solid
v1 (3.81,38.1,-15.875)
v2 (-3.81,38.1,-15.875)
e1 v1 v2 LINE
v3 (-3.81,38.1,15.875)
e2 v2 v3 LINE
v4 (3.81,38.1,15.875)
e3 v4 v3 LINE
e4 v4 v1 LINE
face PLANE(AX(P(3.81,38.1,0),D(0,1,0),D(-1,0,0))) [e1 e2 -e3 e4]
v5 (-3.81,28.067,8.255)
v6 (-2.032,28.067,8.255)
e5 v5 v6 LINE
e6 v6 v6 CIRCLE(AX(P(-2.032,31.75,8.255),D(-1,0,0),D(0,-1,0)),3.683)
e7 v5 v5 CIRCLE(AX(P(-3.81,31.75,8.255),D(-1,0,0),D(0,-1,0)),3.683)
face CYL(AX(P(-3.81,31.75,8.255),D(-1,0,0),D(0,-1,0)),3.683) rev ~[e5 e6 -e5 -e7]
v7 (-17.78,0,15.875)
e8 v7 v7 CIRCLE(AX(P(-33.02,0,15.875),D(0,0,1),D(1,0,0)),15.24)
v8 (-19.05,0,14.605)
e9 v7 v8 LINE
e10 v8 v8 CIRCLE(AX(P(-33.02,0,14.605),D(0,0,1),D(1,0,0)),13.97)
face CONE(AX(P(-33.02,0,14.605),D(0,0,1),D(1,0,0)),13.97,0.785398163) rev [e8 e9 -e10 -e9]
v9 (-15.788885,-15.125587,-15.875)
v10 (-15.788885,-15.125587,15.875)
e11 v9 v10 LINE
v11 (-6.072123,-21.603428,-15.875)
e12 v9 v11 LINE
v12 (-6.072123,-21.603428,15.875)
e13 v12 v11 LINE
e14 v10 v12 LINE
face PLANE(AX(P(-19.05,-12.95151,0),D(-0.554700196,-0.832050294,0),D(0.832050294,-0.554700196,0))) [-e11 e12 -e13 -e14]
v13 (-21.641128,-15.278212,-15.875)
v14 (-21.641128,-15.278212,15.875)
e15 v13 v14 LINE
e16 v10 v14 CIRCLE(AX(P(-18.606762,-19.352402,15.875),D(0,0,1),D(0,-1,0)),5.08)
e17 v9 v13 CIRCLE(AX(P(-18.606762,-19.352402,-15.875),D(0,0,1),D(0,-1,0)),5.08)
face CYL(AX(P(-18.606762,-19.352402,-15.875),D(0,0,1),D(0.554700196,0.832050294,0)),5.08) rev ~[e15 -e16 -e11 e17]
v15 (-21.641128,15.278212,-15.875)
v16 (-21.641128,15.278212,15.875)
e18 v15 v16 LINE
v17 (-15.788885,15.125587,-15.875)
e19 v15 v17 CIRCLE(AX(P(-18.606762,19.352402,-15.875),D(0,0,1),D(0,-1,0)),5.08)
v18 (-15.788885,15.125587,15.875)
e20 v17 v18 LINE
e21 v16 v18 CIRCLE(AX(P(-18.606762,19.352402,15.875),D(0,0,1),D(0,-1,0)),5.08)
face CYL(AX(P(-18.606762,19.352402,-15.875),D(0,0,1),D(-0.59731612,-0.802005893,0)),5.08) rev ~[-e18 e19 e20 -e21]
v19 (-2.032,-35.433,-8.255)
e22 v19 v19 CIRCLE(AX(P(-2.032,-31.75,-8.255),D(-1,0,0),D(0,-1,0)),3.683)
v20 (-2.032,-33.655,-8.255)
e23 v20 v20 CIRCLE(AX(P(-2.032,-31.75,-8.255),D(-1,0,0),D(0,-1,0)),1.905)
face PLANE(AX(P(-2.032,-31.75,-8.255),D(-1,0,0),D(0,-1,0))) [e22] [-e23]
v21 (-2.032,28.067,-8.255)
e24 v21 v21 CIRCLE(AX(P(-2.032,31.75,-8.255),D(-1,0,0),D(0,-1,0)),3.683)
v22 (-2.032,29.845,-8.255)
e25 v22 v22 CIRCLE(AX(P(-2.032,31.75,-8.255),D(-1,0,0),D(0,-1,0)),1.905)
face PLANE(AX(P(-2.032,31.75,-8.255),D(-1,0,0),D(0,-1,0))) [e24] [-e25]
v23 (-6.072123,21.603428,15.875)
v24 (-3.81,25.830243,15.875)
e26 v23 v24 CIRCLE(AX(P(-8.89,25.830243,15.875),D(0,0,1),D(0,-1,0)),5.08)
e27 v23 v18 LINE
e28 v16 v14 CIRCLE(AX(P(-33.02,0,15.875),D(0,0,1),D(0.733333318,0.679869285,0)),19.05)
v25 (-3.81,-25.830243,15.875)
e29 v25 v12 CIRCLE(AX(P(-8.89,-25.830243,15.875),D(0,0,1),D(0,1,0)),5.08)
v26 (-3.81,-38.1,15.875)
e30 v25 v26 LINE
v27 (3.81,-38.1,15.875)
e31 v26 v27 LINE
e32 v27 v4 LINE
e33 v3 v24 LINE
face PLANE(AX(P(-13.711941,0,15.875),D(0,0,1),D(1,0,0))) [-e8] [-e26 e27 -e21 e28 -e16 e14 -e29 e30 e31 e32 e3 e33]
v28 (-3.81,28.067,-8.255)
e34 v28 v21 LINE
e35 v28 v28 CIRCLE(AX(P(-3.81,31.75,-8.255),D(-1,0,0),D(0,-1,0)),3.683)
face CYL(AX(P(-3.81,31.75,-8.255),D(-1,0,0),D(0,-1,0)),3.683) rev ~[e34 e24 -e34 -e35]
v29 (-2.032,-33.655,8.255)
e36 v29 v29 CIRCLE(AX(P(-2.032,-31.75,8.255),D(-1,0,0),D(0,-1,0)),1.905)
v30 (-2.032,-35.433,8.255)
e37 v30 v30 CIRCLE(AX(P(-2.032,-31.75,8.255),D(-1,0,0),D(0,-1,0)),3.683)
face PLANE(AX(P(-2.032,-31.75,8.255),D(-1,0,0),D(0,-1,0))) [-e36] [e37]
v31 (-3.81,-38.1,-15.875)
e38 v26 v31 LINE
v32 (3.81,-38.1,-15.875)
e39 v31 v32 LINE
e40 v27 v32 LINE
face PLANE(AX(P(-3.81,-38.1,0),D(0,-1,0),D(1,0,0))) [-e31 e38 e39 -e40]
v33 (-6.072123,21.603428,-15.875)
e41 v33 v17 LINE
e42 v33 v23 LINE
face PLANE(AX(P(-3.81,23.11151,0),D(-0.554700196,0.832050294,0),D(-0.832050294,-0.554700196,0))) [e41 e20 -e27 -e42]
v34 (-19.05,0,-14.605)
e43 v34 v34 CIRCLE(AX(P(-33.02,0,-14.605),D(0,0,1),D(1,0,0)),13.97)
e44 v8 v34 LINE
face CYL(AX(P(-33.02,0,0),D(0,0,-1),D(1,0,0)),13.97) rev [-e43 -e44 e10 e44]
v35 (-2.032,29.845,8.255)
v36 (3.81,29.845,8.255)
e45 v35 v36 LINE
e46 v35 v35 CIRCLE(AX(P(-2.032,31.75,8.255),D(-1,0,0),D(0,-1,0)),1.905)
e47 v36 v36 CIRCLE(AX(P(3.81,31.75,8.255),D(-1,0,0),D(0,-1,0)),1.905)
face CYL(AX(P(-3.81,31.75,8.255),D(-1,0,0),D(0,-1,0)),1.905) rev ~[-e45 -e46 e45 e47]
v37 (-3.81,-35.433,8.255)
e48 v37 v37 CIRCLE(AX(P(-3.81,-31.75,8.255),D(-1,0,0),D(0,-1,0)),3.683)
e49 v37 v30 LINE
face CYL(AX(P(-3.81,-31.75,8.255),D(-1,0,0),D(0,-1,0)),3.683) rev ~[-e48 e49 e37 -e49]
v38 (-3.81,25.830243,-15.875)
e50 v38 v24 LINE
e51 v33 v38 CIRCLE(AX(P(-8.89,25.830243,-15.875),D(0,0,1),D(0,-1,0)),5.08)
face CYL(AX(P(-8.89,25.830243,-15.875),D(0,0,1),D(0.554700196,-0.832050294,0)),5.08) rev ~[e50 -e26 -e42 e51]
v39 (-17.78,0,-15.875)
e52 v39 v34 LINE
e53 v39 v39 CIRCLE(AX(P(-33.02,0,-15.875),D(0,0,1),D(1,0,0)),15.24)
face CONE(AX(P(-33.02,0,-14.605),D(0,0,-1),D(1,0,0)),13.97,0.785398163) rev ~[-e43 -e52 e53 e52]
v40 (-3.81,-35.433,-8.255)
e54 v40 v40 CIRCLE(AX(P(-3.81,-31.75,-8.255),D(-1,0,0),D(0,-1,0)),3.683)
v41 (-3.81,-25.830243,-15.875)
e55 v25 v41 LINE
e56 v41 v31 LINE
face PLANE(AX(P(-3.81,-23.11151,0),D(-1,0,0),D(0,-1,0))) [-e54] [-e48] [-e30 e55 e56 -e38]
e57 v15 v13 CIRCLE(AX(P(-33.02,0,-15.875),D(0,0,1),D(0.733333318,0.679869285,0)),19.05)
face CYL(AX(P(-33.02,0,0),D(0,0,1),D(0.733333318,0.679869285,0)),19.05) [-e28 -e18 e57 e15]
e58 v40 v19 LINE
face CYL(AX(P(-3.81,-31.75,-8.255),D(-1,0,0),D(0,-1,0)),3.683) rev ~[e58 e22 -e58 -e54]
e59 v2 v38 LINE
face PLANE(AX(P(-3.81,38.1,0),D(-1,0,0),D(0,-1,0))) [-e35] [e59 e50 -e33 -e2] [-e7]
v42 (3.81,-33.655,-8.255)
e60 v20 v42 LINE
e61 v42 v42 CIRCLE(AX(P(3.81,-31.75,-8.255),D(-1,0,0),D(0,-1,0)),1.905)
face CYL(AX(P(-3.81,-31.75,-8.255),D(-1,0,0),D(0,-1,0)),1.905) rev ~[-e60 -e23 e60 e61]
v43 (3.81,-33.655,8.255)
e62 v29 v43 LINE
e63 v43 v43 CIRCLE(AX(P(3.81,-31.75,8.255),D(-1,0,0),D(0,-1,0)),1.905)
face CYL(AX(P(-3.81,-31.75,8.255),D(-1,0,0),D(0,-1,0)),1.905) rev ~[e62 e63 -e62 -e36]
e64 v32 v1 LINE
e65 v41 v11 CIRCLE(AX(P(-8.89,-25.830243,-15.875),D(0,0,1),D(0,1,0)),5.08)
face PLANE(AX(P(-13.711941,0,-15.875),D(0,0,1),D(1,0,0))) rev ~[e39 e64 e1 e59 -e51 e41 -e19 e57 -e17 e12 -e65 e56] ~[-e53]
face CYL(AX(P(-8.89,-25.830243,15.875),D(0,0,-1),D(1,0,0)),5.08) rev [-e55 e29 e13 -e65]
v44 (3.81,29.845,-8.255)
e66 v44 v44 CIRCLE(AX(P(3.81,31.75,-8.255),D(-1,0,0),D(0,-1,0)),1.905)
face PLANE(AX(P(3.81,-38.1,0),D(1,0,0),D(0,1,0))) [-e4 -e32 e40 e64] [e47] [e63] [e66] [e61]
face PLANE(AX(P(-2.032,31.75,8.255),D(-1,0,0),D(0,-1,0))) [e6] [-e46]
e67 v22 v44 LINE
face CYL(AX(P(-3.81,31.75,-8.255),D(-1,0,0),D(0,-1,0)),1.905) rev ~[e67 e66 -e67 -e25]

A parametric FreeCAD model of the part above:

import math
import FreeCAD as App
import Part
import Sketcher
Q = App.Units.Quantity


def edges_at(feature, points):
    """Names of the edges that pass closest to the given points."""
    edges = feature.Shape.Edges
    near = lambda p: min(range(len(edges)), key=lambda i: edges[i].distToShape(Part.Vertex(*p))[0])
    return sorted({f"Edge{near(p) + 1}" for p in points})

doc = App.newDocument("Part")
body = doc.addObject("PartDesign::Body", "Body")

# Sketch on XY plane
sketch1 = doc.addObject("Sketcher::SketchObject", "Sketch")
body.addObject(sketch1)
sketch1.AttachmentSupport = (doc.XY_Plane, [""])
sketch1.MapMode = "FlatFace"
sketch1.addGeometry([
    Part.LineSegment(App.Vector(4, 38, 0), App.Vector(-4, 38, 0)),  # 0
    Part.LineSegment(App.Vector(-4, 38, 0), App.Vector(-4, 23, 0)),  # 1
    Part.LineSegment(App.Vector(-4, 23, 0), App.Vector(-19, 13, 0)),  # 2
    Part.ArcOfCircle(Part.Circle(App.Vector(-33, 0, 0), App.Vector(0, 0, 1), 19), math.radians(43), math.radians(317)),  # 3
    Part.LineSegment(App.Vector(-19, -13, 0), App.Vector(-4, -23, 0)),  # 4
    Part.LineSegment(App.Vector(-4, -23, 0), App.Vector(-4, -38, 0)),  # 5
    Part.LineSegment(App.Vector(-4, -38, 0), App.Vector(4, -38, 0)),  # 6
    Part.LineSegment(App.Vector(4, -38, 0), App.Vector(4, 38, 0)),  # 7
    Part.Circle(App.Vector(-33, 0, 0), App.Vector(0, 0, 1), 14),  # 8
], False)
sketch1.addConstraint([
    Sketcher.Constraint("Coincident", 0, 2, 1, 1),
    Sketcher.Constraint("Coincident", 1, 2, 2, 1),
    Sketcher.Constraint("Coincident", 2, 2, 3, 1),
    Sketcher.Constraint("Coincident", 3, 2, 4, 1),
    Sketcher.Constraint("Coincident", 4, 2, 5, 1),
    Sketcher.Constraint("Coincident", 5, 2, 6, 1),
    Sketcher.Constraint("Coincident", 6, 2, 7, 1),
    Sketcher.Constraint("Coincident", 7, 2, 0, 1),
    Sketcher.Constraint("Horizontal", 0),
    Sketcher.Constraint("Vertical", 1),
    Sketcher.Constraint("Vertical", 5),
    Sketcher.Constraint("Horizontal", 6),
    Sketcher.Constraint("Vertical", 7),
    Sketcher.Constraint("Coincident", 8, 3, 3, 3),
    Sketcher.Constraint("Symmetric", 0, 2, 6, 2, -1, 1),
    Sketcher.Constraint("Symmetric", 2, 2, 3, 2, -1),
    Sketcher.Constraint("Symmetric", 1, 2, 4, 2, -1),
    Sketcher.Constraint("Diameter", 8, Q("1.1 in")),
    Sketcher.Constraint("DistanceY", 7, 1, 7, 2, Q("3 in")),
    Sketcher.Constraint("Radius", 3, Q("0.75 in")),
    Sketcher.Constraint("DistanceX", 0, 2, 0, 1, Q("0.3 in")),
    Sketcher.Constraint("DistanceX", 3, 3, -1, 1, Q("1.3 in")),
    Sketcher.Constraint("DistanceX", 2, 2, 1, 2, Q("0.6 in")),
    Sketcher.Constraint("DistanceY", 2, 2, 1, 2, Q("0.4 in")),
])
pad1 = doc.addObject("PartDesign::Pad", "Pad")
body.addObject(pad1)
pad1.Profile = sketch1
pad1.Length = Q("1.25 in")
pad1.Midplane = True
doc.recompute()

fillet = doc.addObject("PartDesign::Fillet", "Fillet")
body.addObject(fillet)
fillet.Base = (pad1, edges_at(pad1, [
    (-19.05, -12.952, 0),
    (-3.81, -23.112, 0),
    (-3.81, 23.112, 0),
    (-19.05, 12.952, 0),
]))
fillet.Radius = Q("0.2 in")
doc.recompute()

chamfer = doc.addObject("PartDesign::Chamfer", "Chamfer")
body.addObject(chamfer)
chamfer.Base = (fillet, edges_at(fillet, [(-46.99, 0, 15.875), (-46.99, 0, -15.875)]))
chamfer.ChamferType = "Two distances"
chamfer.Size = Q("0.05 in")
chamfer.Size2 = Q("0.05 in")

# Sketch on YZ plane
sketch2 = doc.addObject("Sketcher::SketchObject", "Sketch001")
body.addObject(sketch2)
sketch2.AttachmentSupport = (doc.YZ_Plane, [""])
sketch2.MapMode = "FlatFace"
sketch2.AttachmentOffset = App.Placement(App.Vector(0, 0, -0.15 * 25.4), App.Rotation())
sketch2.addGeometry([
    Part.Circle(App.Vector(31.8, 8.3, 0), App.Vector(0, 0, 1), 3.7),
    Part.Circle(App.Vector(31.8, -8.3, 0), App.Vector(0, 0, 1), 3.7),
    Part.Circle(App.Vector(-31.8, 8.3, 0), App.Vector(0, 0, 1), 3.7),
    Part.Circle(App.Vector(-31.8, -8.3, 0), App.Vector(0, 0, 1), 3.7),
], False)
sketch2.addConstraint([
    Sketcher.Constraint("Equal", 0, 1),
    Sketcher.Constraint("Equal", 1, 2),
    Sketcher.Constraint("Equal", 2, 3),
    Sketcher.Constraint("Symmetric", 1, 3, 2, 3, -1, 1),
    Sketcher.Constraint("Symmetric", 0, 3, 3, 3, -1, 1),
    Sketcher.Constraint("Symmetric", 0, 3, 2, 3, -2),
    Sketcher.Constraint("Diameter", 0, Q("0.29 in")),
    Sketcher.Constraint("DistanceX", 2, 3, 0, 3, Q("2.5 in")),
    Sketcher.Constraint("DistanceY", 1, 3, 0, 3, Q("0.65 in")),
])
pocket1 = doc.addObject("PartDesign::Pocket", "Pocket")
body.addObject(pocket1)
pocket1.Profile = sketch2
pocket1.Length = Q("0.07 in")
pocket1.Reversed = True

# Sketch on YZ plane
sketch3 = doc.addObject("Sketcher::SketchObject", "Sketch002")
body.addObject(sketch3)
sketch3.AttachmentSupport = (doc.YZ_Plane, [""])
sketch3.MapMode = "FlatFace"
sketch3.AttachmentOffset = App.Placement(App.Vector(0, 0, -0.15 * 25.4), App.Rotation())
sketch3.addGeometry([
    Part.Circle(App.Vector(-31.8, 8.3, 0), App.Vector(0, 0, 1), 1.9),
    Part.Circle(App.Vector(31.8, 8.3, 0), App.Vector(0, 0, 1), 1.9),
    Part.Circle(App.Vector(-31.8, -8.3, 0), App.Vector(0, 0, 1), 1.9),
    Part.Circle(App.Vector(31.8, -8.3, 0), App.Vector(0, 0, 1), 1.9),
], False)
sketch3.addConstraint([
    Sketcher.Constraint("Equal", 0, 1),
    Sketcher.Constraint("Equal", 1, 2),
    Sketcher.Constraint("Equal", 2, 3),
    Sketcher.Constraint("Symmetric", 1, 3, 2, 3, -1, 1),
    Sketcher.Constraint("Symmetric", 0, 3, 3, 3, -1, 1),
    Sketcher.Constraint("Symmetric", 0, 3, 1, 3, -2),
    Sketcher.Constraint("Diameter", 0, Q("0.15 in")),
    Sketcher.Constraint("DistanceX", 0, 3, 1, 3, Q("2.5 in")),
    Sketcher.Constraint("DistanceY", 2, 3, 0, 3, Q("0.65 in")),
])
pocket2 = doc.addObject("PartDesign::Pocket", "Pocket001")
body.addObject(pocket2)
pocket2.Profile = sketch3
pocket2.Type = "ThroughAll"
pocket2.Reversed = True

doc.recompute()
